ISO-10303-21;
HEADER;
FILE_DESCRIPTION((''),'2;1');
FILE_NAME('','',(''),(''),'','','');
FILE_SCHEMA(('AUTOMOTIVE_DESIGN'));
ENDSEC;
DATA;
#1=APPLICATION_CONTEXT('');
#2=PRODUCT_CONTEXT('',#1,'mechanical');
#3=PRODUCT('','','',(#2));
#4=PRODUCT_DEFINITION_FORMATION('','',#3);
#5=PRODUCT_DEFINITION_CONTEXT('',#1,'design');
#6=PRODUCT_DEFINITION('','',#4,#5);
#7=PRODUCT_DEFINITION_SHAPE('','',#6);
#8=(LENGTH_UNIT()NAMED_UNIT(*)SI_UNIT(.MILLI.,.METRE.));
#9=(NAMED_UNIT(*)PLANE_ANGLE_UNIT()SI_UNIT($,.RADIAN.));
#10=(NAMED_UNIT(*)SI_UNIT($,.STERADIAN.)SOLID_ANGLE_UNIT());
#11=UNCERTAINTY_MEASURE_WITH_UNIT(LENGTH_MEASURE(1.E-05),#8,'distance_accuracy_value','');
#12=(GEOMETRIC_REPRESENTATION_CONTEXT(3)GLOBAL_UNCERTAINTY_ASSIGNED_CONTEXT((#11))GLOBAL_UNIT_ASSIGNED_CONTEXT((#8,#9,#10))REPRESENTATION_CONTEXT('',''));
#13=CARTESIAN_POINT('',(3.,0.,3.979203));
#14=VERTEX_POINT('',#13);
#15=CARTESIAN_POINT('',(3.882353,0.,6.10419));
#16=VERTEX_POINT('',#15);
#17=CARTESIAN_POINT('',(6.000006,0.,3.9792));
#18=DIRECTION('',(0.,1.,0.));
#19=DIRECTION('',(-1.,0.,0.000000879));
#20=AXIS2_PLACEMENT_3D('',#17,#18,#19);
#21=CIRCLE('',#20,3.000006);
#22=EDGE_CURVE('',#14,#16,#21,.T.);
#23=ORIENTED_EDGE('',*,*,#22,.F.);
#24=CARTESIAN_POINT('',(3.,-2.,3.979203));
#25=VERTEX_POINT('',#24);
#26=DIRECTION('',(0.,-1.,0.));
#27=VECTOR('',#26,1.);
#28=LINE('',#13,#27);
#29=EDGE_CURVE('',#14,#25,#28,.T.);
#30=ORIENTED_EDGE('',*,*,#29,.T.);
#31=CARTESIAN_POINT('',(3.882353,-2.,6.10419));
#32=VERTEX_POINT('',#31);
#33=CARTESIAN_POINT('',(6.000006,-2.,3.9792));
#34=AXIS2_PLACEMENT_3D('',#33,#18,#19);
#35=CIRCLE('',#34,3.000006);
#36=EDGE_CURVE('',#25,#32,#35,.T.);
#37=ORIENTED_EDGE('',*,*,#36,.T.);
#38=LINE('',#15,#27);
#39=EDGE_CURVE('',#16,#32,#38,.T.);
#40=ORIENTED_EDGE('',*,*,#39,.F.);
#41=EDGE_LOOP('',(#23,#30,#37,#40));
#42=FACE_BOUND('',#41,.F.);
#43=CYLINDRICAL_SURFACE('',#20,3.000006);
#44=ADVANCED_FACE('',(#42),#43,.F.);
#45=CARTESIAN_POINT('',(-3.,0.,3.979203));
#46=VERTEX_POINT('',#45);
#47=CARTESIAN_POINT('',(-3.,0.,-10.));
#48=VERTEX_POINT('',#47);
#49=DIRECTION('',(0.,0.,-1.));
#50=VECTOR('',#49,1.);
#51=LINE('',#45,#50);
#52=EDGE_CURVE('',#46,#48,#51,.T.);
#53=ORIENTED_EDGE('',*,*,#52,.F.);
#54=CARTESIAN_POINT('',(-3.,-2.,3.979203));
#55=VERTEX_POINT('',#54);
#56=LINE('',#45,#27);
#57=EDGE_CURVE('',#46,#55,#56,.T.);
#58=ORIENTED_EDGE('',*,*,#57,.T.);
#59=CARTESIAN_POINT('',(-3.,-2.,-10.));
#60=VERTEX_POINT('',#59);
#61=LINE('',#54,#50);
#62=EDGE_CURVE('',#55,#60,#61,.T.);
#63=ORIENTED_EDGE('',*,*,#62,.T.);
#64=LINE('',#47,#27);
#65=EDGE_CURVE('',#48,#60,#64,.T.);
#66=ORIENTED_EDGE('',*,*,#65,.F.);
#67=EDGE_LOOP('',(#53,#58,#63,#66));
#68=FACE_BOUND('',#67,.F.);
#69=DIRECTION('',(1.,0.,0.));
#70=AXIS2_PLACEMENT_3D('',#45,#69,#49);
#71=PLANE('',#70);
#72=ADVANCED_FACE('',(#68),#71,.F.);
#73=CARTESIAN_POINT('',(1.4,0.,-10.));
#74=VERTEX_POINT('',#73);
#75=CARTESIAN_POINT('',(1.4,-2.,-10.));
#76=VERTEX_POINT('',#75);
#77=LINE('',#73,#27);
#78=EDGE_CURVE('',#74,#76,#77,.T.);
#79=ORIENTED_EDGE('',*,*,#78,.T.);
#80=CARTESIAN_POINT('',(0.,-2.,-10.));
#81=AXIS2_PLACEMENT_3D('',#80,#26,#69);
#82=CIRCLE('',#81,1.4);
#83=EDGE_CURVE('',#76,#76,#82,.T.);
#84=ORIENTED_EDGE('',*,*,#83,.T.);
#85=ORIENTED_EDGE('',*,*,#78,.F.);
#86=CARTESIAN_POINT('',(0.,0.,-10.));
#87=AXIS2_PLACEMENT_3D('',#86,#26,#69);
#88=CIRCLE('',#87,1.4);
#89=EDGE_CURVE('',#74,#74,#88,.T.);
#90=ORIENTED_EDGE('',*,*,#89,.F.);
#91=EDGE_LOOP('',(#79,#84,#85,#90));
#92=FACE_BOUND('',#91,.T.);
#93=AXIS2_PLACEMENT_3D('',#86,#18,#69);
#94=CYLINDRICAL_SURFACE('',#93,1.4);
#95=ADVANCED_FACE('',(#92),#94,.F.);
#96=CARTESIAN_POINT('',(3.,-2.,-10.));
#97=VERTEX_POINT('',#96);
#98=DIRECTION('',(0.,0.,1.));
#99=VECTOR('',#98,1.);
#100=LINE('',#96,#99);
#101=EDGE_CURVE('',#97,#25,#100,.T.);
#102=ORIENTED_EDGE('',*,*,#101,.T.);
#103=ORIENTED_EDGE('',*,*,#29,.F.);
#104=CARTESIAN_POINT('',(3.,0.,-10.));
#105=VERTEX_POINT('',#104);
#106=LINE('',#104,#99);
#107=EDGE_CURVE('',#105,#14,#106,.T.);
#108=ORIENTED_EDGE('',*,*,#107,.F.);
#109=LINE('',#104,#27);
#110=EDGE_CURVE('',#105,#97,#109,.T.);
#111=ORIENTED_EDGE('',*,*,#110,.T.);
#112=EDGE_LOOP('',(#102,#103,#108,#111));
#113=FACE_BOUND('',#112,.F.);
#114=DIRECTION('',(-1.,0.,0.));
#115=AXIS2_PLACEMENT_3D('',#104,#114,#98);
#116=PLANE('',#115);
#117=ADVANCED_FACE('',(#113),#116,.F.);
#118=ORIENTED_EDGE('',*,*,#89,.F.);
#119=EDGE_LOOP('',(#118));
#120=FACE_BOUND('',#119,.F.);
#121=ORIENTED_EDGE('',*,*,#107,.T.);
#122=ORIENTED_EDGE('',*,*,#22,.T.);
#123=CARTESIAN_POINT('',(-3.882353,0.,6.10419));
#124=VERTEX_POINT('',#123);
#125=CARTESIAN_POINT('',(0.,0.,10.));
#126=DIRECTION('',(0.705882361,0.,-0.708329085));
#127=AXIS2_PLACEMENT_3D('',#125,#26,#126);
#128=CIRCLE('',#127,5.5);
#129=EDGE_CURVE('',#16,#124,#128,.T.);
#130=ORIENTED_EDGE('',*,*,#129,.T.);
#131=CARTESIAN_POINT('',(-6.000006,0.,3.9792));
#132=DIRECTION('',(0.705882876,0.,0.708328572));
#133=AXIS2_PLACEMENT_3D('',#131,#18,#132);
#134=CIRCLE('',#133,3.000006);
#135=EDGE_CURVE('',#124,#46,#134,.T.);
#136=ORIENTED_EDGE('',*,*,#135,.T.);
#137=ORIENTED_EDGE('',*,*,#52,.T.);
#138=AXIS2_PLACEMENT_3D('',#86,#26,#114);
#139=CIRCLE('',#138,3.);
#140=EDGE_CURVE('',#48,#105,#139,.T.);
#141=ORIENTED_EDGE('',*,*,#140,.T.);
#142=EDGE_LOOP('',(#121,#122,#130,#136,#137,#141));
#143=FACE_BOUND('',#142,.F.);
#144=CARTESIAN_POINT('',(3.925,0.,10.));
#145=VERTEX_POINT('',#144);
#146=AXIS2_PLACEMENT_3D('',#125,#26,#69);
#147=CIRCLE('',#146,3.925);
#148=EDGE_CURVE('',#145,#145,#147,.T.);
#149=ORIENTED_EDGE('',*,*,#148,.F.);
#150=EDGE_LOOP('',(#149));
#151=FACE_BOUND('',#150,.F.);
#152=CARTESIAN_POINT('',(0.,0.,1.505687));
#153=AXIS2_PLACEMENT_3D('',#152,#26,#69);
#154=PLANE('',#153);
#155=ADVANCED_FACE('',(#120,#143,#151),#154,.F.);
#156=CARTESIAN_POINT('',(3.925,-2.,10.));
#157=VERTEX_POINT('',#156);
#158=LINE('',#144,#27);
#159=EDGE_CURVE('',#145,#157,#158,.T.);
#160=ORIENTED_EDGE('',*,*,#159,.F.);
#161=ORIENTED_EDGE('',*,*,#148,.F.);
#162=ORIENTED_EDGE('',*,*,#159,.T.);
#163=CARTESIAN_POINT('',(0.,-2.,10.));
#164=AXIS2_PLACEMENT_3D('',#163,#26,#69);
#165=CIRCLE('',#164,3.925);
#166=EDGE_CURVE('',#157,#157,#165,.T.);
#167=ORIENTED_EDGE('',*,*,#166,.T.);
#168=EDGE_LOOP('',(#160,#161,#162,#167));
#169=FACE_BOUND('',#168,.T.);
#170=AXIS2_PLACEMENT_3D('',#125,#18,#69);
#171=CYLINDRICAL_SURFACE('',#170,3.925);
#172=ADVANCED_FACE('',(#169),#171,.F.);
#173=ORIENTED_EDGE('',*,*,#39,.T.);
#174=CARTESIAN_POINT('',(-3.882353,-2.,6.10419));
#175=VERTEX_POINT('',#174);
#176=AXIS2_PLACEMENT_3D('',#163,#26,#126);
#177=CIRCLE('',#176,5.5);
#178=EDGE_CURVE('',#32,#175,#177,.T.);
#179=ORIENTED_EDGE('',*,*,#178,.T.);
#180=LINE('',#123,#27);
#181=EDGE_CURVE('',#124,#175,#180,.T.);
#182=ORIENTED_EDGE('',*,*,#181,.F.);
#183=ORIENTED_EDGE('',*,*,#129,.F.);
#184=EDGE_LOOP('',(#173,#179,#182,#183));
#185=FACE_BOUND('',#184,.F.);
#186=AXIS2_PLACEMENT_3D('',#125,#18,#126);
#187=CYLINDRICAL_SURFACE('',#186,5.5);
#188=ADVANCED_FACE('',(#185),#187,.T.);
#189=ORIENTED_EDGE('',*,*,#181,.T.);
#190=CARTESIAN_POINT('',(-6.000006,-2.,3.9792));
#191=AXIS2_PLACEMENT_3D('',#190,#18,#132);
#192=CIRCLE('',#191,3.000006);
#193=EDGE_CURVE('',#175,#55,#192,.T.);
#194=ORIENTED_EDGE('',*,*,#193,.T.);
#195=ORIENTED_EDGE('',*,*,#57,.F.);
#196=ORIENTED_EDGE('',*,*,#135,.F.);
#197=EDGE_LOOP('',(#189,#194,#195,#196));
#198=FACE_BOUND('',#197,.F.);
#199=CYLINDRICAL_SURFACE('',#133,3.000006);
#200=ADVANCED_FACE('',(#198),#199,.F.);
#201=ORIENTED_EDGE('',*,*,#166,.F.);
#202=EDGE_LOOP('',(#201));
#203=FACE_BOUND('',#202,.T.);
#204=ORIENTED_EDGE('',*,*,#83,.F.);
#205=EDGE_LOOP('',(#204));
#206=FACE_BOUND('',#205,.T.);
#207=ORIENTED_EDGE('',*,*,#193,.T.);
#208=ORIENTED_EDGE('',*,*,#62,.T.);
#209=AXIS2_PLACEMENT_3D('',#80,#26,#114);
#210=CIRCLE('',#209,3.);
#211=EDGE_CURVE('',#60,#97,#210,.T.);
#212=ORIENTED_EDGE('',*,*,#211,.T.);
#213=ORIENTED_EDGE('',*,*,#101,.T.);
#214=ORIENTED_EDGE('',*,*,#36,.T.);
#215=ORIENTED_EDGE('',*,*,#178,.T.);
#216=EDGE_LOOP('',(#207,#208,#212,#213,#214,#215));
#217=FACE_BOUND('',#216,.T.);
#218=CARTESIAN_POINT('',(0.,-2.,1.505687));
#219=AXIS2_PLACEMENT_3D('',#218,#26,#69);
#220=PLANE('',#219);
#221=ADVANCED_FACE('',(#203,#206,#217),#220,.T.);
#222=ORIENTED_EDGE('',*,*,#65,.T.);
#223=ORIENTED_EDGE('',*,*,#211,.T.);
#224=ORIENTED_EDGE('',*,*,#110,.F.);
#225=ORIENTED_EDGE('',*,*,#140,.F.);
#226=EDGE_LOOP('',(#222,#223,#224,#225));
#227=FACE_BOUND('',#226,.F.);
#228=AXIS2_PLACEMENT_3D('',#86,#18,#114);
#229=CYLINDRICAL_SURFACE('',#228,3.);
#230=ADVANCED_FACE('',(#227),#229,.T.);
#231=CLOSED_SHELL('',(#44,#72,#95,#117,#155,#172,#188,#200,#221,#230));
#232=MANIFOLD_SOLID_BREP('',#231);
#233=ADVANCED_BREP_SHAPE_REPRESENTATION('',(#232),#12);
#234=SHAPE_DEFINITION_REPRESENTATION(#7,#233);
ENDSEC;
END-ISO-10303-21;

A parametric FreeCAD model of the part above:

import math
import FreeCAD as App
import Part
import Sketcher

V = App.Vector

doc = App.newDocument("Part")
body = doc.addObject("PartDesign::Body", "Body")

sketch1 = body.newObject("Sketcher::SketchObject", "Sketch")
sketch1.AttachmentSupport = (doc.getObject("XZ_Plane"), [""])
sketch1.MapMode = "FlatFace"
sketch1.addGeometry([
    Part.ArcOfCircle(Part.Circle(V(-6, 4, 0), V(0, 0, 1), 3), math.radians(0), math.radians(45)),
    Part.LineSegment(V(-3, 4, 0), V(-3, -10, 0)),
    Part.ArcOfCircle(Part.Circle(V(0, -10, 0), V(0, 0, 1), 3), math.radians(180), math.radians(360)),
    Part.LineSegment(V(3, -10, 0), V(3, 4, 0)),
    Part.ArcOfCircle(Part.Circle(V(6, 4, 0), V(0, 0, 1), 3), math.radians(135), math.radians(180)),
    Part.ArcOfCircle(Part.Circle(V(0, 10, 0), V(0, 0, 1), 5.5), math.radians(-45), math.radians(225)),
    Part.Circle(V(0, -10, 0), V(0, 0, 1), 1.4),
    Part.Circle(V(0, 10, 0), V(0, 0, 1), 3.9),
], False)
sketch1.addConstraint([
    Sketcher.Constraint("Tangent", 0, 1, 1, 1),
    Sketcher.Constraint("Tangent", 1, 2, 2, 1),
    Sketcher.Constraint("Tangent", 2, 2, 3, 1),
    Sketcher.Constraint("Tangent", 3, 2, 4, 2),
    Sketcher.Constraint("Tangent", 4, 1, 5, 1),
    Sketcher.Constraint("Tangent", 5, 2, 0, 2),
    Sketcher.Constraint("Vertical", 1),
    Sketcher.Constraint("Vertical", 3),
    Sketcher.Constraint("Coincident", 6, 3, 2, 3),
    Sketcher.Constraint("Coincident", 7, 3, 5, 3),
    Sketcher.Constraint("Equal", 0, 4),
    Sketcher.Constraint("Symmetric", 2, 3, 5, 3, -1, 1),
    Sketcher.Constraint("PointOnObject", 2, 3, -2),
    Sketcher.Constraint("Radius", 2, 3.0),
    Sketcher.Constraint("Diameter", 6, 2.8),
    Sketcher.Constraint("Radius", 5, 5.5),
    Sketcher.Constraint("Diameter", 7, 7.85),
    Sketcher.Constraint("DistanceY", 2, 3, -1, 1, 10.0),
    Sketcher.Constraint("Radius", 0, 3.000006),
])
pad1 = body.newObject("PartDesign::Pad", "Pad")
pad1.Profile = sketch1
pad1.Length = 2

doc.recompute()
